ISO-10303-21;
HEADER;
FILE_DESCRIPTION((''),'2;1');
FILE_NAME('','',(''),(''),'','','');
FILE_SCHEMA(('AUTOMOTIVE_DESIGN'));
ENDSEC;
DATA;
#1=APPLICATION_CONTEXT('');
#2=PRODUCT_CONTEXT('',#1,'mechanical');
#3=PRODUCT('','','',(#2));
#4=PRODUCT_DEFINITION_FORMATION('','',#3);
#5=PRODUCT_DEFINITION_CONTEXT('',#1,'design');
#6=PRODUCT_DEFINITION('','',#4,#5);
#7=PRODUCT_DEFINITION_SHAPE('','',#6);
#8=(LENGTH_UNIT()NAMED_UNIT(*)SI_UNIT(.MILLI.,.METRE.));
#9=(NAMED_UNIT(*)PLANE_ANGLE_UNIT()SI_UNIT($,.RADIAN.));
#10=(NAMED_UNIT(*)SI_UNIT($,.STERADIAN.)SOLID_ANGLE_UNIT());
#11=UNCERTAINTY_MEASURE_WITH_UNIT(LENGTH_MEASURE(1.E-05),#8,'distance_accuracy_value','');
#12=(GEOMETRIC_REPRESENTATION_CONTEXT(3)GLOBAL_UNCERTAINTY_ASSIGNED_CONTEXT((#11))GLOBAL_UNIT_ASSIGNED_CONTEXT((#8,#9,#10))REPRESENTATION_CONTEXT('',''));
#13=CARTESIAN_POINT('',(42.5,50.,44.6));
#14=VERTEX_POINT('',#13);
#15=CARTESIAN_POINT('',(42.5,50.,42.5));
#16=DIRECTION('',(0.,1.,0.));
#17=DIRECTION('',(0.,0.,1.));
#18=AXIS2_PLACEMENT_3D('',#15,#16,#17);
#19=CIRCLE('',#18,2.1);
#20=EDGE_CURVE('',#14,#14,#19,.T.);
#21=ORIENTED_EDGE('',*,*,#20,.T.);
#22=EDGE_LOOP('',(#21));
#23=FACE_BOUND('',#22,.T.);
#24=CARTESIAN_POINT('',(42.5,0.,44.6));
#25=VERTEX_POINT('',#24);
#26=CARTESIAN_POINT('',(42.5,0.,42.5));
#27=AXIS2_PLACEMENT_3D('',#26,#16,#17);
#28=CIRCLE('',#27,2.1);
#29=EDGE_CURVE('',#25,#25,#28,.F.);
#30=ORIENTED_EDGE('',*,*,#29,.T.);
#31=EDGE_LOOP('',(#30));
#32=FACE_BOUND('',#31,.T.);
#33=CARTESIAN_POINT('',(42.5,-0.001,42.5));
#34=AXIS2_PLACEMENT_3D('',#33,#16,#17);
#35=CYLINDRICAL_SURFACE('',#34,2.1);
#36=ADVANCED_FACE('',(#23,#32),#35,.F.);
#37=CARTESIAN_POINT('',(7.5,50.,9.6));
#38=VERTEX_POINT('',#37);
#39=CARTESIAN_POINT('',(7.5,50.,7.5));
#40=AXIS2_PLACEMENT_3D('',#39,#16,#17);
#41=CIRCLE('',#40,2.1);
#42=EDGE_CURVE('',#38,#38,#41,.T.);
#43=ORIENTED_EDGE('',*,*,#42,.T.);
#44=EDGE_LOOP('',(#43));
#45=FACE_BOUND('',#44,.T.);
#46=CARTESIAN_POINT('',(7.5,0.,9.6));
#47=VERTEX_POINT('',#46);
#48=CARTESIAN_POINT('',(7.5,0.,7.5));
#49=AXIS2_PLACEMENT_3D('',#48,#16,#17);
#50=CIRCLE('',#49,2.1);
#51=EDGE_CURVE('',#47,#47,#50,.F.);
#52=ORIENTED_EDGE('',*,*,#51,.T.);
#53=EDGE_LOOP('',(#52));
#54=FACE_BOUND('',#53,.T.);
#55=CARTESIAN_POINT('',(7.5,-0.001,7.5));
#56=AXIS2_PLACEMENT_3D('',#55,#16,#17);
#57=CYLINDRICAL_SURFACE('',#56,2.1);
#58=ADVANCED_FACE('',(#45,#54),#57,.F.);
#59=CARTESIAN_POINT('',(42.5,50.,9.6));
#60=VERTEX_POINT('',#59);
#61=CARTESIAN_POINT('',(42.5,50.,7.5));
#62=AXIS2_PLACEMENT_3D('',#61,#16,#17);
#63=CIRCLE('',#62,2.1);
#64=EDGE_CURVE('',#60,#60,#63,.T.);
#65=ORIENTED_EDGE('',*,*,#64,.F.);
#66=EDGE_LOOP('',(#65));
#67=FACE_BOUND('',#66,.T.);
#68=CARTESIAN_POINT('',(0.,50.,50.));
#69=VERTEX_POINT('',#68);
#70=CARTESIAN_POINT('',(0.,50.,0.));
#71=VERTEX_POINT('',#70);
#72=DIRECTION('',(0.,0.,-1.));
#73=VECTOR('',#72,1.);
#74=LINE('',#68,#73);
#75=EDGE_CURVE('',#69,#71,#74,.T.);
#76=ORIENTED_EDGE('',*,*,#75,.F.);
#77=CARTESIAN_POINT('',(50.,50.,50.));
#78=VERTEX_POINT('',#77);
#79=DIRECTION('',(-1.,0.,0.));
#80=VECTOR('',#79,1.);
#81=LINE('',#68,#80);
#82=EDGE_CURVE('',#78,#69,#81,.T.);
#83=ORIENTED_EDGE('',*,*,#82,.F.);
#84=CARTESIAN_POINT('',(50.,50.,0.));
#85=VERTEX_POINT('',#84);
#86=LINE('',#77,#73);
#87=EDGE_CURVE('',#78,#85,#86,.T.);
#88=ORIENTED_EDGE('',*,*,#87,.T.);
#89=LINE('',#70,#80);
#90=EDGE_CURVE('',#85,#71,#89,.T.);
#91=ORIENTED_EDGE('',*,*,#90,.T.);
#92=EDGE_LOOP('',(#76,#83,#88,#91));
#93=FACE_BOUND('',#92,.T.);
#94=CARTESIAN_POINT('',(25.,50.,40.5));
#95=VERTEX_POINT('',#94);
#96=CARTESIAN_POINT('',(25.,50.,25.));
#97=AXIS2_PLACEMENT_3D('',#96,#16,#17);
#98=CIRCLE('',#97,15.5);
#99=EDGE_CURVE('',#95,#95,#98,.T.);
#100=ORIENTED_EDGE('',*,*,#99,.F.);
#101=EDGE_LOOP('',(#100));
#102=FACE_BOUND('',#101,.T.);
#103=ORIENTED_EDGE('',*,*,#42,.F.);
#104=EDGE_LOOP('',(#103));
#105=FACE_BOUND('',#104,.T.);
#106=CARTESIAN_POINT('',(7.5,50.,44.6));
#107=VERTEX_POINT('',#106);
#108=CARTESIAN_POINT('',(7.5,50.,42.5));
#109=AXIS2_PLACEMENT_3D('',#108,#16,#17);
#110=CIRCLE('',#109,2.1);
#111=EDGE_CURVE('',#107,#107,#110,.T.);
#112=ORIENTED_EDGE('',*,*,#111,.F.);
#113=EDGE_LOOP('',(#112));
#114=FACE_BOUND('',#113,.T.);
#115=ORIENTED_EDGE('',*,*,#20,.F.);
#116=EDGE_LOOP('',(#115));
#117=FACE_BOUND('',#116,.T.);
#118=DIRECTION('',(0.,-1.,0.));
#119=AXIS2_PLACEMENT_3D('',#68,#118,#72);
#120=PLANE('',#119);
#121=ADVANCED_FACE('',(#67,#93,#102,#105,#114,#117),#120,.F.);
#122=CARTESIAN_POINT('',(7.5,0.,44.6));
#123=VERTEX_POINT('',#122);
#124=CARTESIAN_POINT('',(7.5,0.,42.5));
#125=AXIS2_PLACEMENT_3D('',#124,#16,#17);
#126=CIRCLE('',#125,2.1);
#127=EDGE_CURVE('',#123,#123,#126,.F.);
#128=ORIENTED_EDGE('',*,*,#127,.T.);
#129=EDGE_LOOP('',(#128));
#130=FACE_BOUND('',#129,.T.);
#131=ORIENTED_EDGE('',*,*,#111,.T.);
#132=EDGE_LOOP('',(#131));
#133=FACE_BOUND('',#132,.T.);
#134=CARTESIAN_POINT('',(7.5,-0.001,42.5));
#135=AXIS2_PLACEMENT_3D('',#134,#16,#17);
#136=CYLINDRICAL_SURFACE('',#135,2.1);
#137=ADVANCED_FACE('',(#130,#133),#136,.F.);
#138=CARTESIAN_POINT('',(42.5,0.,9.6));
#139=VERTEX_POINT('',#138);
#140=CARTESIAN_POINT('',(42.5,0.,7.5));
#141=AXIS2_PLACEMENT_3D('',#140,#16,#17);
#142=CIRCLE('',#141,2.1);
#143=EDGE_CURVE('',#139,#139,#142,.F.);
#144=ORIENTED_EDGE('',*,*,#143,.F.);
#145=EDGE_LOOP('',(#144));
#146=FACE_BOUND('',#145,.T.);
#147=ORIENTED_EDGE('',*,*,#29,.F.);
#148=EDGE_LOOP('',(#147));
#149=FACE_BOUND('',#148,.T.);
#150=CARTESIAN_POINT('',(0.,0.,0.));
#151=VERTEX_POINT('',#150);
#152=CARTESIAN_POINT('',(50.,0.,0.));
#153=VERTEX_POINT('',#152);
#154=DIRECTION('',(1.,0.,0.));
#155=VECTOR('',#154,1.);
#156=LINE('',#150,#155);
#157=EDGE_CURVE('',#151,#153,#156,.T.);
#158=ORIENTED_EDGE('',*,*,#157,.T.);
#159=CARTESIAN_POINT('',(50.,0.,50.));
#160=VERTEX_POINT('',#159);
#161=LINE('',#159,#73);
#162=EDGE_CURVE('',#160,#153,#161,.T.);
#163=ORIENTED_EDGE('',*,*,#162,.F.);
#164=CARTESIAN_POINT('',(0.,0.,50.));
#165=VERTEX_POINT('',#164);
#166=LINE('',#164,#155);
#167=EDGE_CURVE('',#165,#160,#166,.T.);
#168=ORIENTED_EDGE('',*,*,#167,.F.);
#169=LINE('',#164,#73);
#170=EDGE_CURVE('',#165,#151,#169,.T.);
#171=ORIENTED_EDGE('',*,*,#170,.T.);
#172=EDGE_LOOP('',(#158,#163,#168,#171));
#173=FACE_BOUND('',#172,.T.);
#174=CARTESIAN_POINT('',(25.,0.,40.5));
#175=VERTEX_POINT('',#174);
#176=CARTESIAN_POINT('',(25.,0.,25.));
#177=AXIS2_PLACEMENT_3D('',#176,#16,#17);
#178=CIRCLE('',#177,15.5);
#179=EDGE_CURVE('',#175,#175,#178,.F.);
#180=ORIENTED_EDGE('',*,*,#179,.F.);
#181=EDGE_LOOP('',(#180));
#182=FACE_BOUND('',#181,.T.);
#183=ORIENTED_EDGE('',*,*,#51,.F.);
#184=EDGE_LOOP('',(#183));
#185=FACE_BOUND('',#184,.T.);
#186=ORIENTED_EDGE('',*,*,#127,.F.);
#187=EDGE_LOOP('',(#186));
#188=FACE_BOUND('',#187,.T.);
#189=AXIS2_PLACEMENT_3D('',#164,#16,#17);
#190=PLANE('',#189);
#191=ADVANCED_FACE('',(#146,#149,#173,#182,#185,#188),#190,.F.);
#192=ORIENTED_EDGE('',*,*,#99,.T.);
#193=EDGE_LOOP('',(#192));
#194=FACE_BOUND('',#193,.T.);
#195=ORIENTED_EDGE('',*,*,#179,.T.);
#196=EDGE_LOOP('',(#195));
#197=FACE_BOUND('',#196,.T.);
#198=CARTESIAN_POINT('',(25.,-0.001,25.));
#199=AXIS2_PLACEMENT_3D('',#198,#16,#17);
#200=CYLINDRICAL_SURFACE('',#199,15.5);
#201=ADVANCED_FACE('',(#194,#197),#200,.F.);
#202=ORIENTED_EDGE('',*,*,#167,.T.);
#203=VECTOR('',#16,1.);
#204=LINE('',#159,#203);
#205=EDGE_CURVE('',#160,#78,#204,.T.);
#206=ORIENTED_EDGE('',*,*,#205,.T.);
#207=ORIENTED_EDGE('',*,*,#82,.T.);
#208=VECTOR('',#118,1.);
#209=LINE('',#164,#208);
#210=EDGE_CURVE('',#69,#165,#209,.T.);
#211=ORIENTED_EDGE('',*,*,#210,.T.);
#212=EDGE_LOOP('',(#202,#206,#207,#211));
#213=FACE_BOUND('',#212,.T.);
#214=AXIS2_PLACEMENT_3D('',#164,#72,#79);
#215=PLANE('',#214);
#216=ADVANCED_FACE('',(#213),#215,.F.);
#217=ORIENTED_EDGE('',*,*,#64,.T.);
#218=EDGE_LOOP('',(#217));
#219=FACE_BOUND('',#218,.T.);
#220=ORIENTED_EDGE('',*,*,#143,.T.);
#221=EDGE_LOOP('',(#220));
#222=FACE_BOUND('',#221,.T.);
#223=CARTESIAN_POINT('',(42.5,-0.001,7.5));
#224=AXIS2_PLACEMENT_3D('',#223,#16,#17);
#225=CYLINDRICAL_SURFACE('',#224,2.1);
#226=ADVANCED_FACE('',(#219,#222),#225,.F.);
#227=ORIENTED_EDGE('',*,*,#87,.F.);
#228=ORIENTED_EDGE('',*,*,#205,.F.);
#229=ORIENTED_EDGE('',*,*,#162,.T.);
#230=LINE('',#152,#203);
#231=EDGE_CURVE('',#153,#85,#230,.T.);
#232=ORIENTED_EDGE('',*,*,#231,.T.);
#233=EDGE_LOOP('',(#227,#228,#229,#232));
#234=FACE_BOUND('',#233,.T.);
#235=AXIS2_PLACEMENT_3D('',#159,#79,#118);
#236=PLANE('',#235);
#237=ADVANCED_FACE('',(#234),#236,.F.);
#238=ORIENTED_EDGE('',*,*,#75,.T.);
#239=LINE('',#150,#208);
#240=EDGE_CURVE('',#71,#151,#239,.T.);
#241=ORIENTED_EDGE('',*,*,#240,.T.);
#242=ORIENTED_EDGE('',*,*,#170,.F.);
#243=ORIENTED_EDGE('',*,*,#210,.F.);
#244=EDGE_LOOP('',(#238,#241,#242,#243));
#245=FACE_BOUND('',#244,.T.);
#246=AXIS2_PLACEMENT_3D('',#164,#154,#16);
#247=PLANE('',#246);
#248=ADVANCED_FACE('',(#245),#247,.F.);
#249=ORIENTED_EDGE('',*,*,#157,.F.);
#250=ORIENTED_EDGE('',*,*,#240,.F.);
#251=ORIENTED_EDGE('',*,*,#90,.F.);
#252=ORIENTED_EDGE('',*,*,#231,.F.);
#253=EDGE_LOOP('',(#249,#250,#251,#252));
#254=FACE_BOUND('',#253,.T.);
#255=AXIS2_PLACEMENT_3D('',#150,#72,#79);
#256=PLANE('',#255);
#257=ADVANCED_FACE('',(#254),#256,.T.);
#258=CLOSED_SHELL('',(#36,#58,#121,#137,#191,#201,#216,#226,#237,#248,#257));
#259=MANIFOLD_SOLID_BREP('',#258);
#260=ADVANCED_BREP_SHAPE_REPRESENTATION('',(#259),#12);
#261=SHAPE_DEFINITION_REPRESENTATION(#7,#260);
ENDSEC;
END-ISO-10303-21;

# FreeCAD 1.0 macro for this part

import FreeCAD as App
import Part
import Sketcher

V = App.Vector
Q = App.Units.Quantity


def add_polygon(sketch, points):
    """Adds a closed chain of lines whose ends are joined by coincident constraints."""
    first, n = sketch.GeometryCount, len(points)
    for a, b in zip(points, points[1:] + points[:1]):
        sketch.addGeometry(Part.LineSegment(App.Vector(*a, 0), App.Vector(*b, 0)), False)
    for i in range(n):
        sketch.addConstraint(Sketcher.Constraint("Coincident", first + i, 2, first + (i + 1) % n, 1))

doc = App.newDocument("Part")
body = doc.addObject("PartDesign::Body", "Body")

# Sketch on XY plane
sketch1 = body.newObject("Sketcher::SketchObject", "Sketch")
sketch1.AttachmentSupport = (doc.getObject("XY_Plane"), [""])
sketch1.MapMode = "FlatFace"
add_polygon(sketch1, [(0, 50), (0, 0), (50, 0), (50, 50)])  # lines 0-3
sketch1.addConstraint(Sketcher.Constraint("Vertical", 0))
sketch1.addConstraint(Sketcher.Constraint("Horizontal", 1))
sketch1.addConstraint(Sketcher.Constraint("Vertical", 2))
sketch1.addConstraint(Sketcher.Constraint("Horizontal", 3))
sketch1.addConstraint(Sketcher.Constraint("Coincident", 0, 2, -1, 1))
sketch1.addConstraint(Sketcher.Constraint("Equal", 3, 0))
sketch1.addConstraint(Sketcher.Constraint("DistanceX", 1, 1, 1, 2, Q("50 mm")))
pad1 = body.newObject("PartDesign::Pad", "Pad")
pad1.Profile = sketch1
pad1.Length = 50

# Sketch on XZ plane
sketch2 = body.newObject("Sketcher::SketchObject", "Sketch001")
sketch2.AttachmentSupport = (doc.getObject("XZ_Plane"), [""])
sketch2.MapMode = "FlatFace"
sketch2.AttachmentOffset = App.Placement(V(0, 0, -50), App.Rotation())
sketch2.addGeometry(Part.Circle(V(7.5, 7.5, 0), V(0, 0, 1), 2.1), False)
sketch2.addConstraint(Sketcher.Constraint("Diameter", 0, Q("4.2 mm")))
sketch2.addConstraint(Sketcher.Constraint("DistanceX", -1, 1, 0, 3, Q("7.5 mm")))
sketch2.addConstraint(Sketcher.Constraint("DistanceY", -1, 1, 0, 3, Q("7.5 mm")))
pocket1 = body.newObject("PartDesign::Pocket", "Pocket")
pocket1.Profile = sketch2
pocket1.Type = "UpToFirst"
pocket1.Reversed = True

# Sketch on XZ plane
sketch3 = body.newObject("Sketcher::SketchObject", "Sketch002")
sketch3.AttachmentSupport = (doc.getObject("XZ_Plane"), [""])
sketch3.MapMode = "FlatFace"
sketch3.AttachmentOffset = App.Placement(V(0, 0, -50), App.Rotation())
sketch3.addGeometry(Part.Circle(V(42.5, 7.5, 0), V(0, 0, 1), 2.1), False)
sketch3.addConstraint(Sketcher.Constraint("Diameter", 0, Q("4.2 mm")))
sketch3.addConstraint(Sketcher.Constraint("DistanceX", -1, 1, 0, 3, Q("42.5 mm")))
sketch3.addConstraint(Sketcher.Constraint("DistanceY", -1, 1, 0, 3, Q("7.5 mm")))
pocket2 = body.newObject("PartDesign::Pocket", "Pocket001")
pocket2.Profile = sketch3
pocket2.Type = "UpToFirst"
pocket2.Reversed = True

# Sketch on XZ plane
sketch4 = body.newObject("Sketcher::SketchObject", "Sketch003")
sketch4.AttachmentSupport = (doc.getObject("XZ_Plane"), [""])
sketch4.MapMode = "FlatFace"
sketch4.AttachmentOffset = App.Placement(V(0, 0, -50), App.Rotation())
sketch4.addGeometry(Part.Circle(V(7.5, 42.5, 0), V(0, 0, 1), 2.1), False)
sketch4.addConstraint(Sketcher.Constraint("Diameter", 0, Q("4.2 mm")))
sketch4.addConstraint(Sketcher.Constraint("DistanceX", -1, 1, 0, 3, Q("7.5 mm")))
sketch4.addConstraint(Sketcher.Constraint("DistanceY", -1, 1, 0, 3, Q("42.5 mm")))
pocket3 = body.newObject("PartDesign::Pocket", "Pocket002")
pocket3.Profile = sketch4
pocket3.Type = "UpToFirst"
pocket3.Reversed = True

# Sketch on XZ plane
sketch5 = body.newObject("Sketcher::SketchObject", "Sketch004")
sketch5.AttachmentSupport = (doc.getObject("XZ_Plane"), [""])
sketch5.MapMode = "FlatFace"
sketch5.AttachmentOffset = App.Placement(V(0, 0, -50), App.Rotation())
sketch5.addGeometry(Part.Circle(V(42.5, 42.5, 0), V(0, 0, 1), 2.1), False)
sketch5.addConstraint(Sketcher.Constraint("Diameter", 0, Q("4.2 mm")))
sketch5.addConstraint(Sketcher.Constraint("DistanceX", -1, 1, 0, 3, Q("42.5 mm")))
sketch5.addConstraint(Sketcher.Constraint("DistanceY", -1, 1, 0, 3, Q("42.5 mm")))
pocket4 = body.newObject("PartDesign::Pocket", "Pocket003")
pocket4.Profile = sketch5
pocket4.Type = "UpToFirst"
pocket4.Reversed = True

# Sketch on XZ plane
sketch6 = body.newObject("Sketcher::SketchObject", "Sketch005")
sketch6.AttachmentSupport = (doc.getObject("XZ_Plane"), [""])
sketch6.MapMode = "FlatFace"
sketch6.AttachmentOffset = App.Placement(V(0, 0, -50), App.Rotation())
sketch6.addGeometry(Part.Circle(V(25, 25, 0), V(0, 0, 1), 16), False)
sketch6.addConstraint(Sketcher.Constraint("Diameter", 0, Q("31 mm")))
sketch6.addConstraint(Sketcher.Constraint("DistanceX", -1, 1, 0, 3, Q("25 mm")))
sketch6.addConstraint(Sketcher.Constraint("DistanceY", -1, 1, 0, 3, Q("25 mm")))
pocket5 = body.newObject("PartDesign::Pocket", "Pocket004")
pocket5.Profile = sketch6
pocket5.Type = "UpToFirst"
pocket5.Reversed = True

doc.recompute()
